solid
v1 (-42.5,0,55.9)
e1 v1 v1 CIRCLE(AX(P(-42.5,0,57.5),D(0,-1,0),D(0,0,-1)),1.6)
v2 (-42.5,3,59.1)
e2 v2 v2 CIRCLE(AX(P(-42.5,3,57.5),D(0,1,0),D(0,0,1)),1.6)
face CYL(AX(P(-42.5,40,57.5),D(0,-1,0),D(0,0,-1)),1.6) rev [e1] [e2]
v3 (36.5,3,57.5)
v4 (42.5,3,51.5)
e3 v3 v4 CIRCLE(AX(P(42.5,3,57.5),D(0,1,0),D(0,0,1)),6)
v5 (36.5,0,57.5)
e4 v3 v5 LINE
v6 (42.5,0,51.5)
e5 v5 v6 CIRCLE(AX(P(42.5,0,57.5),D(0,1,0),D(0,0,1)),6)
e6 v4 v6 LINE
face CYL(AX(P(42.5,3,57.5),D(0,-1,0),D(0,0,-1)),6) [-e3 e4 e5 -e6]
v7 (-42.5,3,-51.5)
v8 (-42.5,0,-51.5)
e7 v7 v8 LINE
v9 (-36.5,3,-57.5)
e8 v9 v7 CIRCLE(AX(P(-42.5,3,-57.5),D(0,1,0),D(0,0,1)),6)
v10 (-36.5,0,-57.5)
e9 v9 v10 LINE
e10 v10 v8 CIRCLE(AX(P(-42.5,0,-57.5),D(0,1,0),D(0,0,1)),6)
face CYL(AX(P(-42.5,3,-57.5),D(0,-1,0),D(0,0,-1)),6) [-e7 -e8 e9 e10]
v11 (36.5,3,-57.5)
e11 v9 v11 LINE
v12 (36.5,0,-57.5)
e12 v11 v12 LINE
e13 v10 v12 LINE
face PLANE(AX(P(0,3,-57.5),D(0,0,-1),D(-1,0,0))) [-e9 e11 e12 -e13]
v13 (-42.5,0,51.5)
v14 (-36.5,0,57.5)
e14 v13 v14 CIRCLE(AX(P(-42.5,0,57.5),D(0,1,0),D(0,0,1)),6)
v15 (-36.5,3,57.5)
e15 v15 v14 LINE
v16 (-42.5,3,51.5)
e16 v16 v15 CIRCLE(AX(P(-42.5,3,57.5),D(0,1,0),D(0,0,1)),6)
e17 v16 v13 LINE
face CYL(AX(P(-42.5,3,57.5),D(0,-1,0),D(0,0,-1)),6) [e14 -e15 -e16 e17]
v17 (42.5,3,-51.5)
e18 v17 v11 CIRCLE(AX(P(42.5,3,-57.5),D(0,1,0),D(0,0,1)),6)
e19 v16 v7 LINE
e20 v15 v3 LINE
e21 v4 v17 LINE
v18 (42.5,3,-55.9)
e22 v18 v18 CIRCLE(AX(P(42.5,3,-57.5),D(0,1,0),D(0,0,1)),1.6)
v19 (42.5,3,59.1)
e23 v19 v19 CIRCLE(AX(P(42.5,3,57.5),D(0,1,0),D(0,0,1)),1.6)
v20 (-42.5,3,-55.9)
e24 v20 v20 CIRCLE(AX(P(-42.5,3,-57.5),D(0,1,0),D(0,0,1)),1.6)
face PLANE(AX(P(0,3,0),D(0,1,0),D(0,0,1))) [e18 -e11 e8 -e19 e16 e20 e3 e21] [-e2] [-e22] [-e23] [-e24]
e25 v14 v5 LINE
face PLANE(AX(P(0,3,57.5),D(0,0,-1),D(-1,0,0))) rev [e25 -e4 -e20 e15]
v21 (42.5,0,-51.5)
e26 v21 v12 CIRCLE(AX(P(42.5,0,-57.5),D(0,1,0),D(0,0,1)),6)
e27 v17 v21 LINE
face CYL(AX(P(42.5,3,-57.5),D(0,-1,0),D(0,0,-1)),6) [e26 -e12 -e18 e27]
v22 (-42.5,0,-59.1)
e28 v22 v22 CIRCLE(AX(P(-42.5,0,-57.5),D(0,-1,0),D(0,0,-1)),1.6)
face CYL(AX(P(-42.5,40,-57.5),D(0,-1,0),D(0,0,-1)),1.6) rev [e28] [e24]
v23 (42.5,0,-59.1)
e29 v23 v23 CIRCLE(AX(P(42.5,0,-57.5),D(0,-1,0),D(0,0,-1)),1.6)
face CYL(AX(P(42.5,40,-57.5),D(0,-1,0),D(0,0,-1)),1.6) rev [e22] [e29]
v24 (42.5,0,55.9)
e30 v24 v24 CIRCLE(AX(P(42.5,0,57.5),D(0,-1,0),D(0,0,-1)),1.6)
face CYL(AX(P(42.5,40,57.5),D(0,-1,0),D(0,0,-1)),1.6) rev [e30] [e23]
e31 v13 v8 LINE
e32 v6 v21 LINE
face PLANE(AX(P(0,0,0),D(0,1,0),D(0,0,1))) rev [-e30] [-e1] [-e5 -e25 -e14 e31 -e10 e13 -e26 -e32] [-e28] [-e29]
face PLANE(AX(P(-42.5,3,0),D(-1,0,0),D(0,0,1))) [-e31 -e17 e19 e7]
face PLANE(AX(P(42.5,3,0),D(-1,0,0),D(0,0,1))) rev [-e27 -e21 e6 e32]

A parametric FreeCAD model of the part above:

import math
import FreeCAD as App
import Part
import Sketcher

V = App.Vector
Q = App.Units.Quantity

doc = App.newDocument("Part")
body = doc.addObject("PartDesign::Body", "Body")

# Sketch on XZ plane
sketch1 = doc.addObject("Sketcher::SketchObject", "Sketch")
body.addObject(sketch1)
sketch1.AttachmentSupport = (doc.XZ_Plane, [""])
sketch1.MapMode = "FlatFace"
sketch1.addGeometry([
    Part.LineSegment(V(-42, -52, 0), V(-42, 52, 0)),  # 0
    Part.ArcOfCircle(Part.Circle(V(-42, 58, 0), V(0, 0, 1), 6), math.radians(0), math.radians(270)),  # 1
    Part.LineSegment(V(-36, 58, 0), V(36, 58, 0)),  # 2
    Part.ArcOfCircle(Part.Circle(V(42, 58, 0), V(0, 0, 1), 6), math.radians(-90), math.radians(180)),  # 3
    Part.LineSegment(V(42, 52, 0), V(42, -52, 0)),  # 4
    Part.ArcOfCircle(Part.Circle(V(42, -58, 0), V(0, 0, 1), 6), math.radians(180), math.radians(450)),  # 5
    Part.LineSegment(V(36, -58, 0), V(-36, -58, 0)),  # 6
    Part.ArcOfCircle(Part.Circle(V(-42, -58, 0), V(0, 0, 1), 6), math.radians(90), math.radians(360)),  # 7
], False)
sketch1.addConstraint([
    Sketcher.Constraint("Coincident", 0, 2, 1, 2),
    Sketcher.Constraint("Coincident", 1, 1, 2, 1),
    Sketcher.Constraint("Coincident", 2, 2, 3, 2),
    Sketcher.Constraint("Coincident", 3, 1, 4, 1),
    Sketcher.Constraint("Coincident", 4, 2, 5, 2),
    Sketcher.Constraint("Coincident", 5, 1, 6, 1),
    Sketcher.Constraint("Coincident", 6, 2, 7, 2),
    Sketcher.Constraint("Coincident", 7, 1, 0, 1),
    Sketcher.Constraint("Vertical", 0),
    Sketcher.Constraint("Horizontal", 2),
    Sketcher.Constraint("Vertical", 4),
    Sketcher.Constraint("Horizontal", 6),
    Sketcher.Constraint("Equal", 1, 3),
    Sketcher.Constraint("Equal", 3, 5),
    Sketcher.Constraint("Equal", 5, 7),
    Sketcher.Constraint("Symmetric", 1, 3, 5, 3, -1, 1),
    Sketcher.Constraint("Symmetric", 3, 3, 7, 3, -1, 1),
    Sketcher.Constraint("Symmetric", 1, 3, 3, 3, -2),
    Sketcher.Constraint("Horizontal", 3, 3, 1, 1),
    Sketcher.Constraint("Horizontal", 7, 3, 5, 1),
    Sketcher.Constraint("Vertical", 7, 3, 0, 2),
    Sketcher.Constraint("Vertical", 5, 3, 3, 1),
    Sketcher.Constraint("Radius", 1, Q("6 mm")),
    Sketcher.Constraint("DistanceX", 2, 1, 2, 2, Q("73 mm")),
    Sketcher.Constraint("DistanceY", 0, 1, 0, 2, Q("103 mm")),
])
pad1 = doc.addObject("PartDesign::Pad", "Pad")
body.addObject(pad1)
pad1.Profile = sketch1
pad1.Length = 3
pad1.Reversed = True

# Sketch on XZ plane
sketch2 = doc.addObject("Sketcher::SketchObject", "Sketch001")
body.addObject(sketch2)
sketch2.AttachmentSupport = (doc.XZ_Plane, [""])
sketch2.MapMode = "FlatFace"
sketch2.addGeometry([
    Part.Circle(V(-42.5, 57.5, 0), V(0, 0, 1), 1.6),
    Part.Circle(V(42.5, 57.5, 0), V(0, 0, 1), 1.6),
    Part.Circle(V(42.5, -57.5, 0), V(0, 0, 1), 1.6),
    Part.Circle(V(-42.5, -57.5, 0), V(0, 0, 1), 1.6),
], False)
sketch2.addConstraint([
    Sketcher.Constraint("Equal", 0, 1),
    Sketcher.Constraint("Equal", 1, 2),
    Sketcher.Constraint("Equal", 2, 3),
    Sketcher.Constraint("Symmetric", 0, 3, 2, 3, -1, 1),
    Sketcher.Constraint("Symmetric", 1, 3, 3, 3, -1, 1),
    Sketcher.Constraint("Symmetric", 0, 3, 1, 3, -2),
    Sketcher.Constraint("Diameter", 0, Q("3.2 mm")),
    Sketcher.Constraint("DistanceX", 0, 3, 1, 3, Q("85 mm")),
    Sketcher.Constraint("DistanceY", 2, 3, 1, 3, Q("115 mm")),
])
pocket1 = doc.addObject("PartDesign::Pocket", "Pocket")
body.addObject(pocket1)
pocket1.Profile = sketch2
pocket1.Length = 40

doc.recompute()
